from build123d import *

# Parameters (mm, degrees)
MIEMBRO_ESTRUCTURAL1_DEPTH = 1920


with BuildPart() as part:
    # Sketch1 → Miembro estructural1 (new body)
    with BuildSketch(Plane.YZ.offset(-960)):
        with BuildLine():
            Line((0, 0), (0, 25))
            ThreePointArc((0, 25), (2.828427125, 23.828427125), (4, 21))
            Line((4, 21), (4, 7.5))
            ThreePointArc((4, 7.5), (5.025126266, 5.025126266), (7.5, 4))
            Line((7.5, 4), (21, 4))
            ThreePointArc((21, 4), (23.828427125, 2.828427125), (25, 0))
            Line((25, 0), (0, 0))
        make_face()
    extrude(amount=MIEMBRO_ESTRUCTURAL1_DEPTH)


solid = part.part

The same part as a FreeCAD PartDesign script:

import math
import FreeCAD as App
import Part
import Sketcher
from FreeCAD import Vector
Q = App.Units.Quantity

doc = App.newDocument("Part")
params = doc.addObject("Spreadsheet::Sheet", "Params")
for row, (alias, value) in enumerate([
    ("sketch1_radius", "4 mm"),
    ("sketch1_radius2", "3.5 mm"),
    ("sketch1_width", "25 mm"),
    ("pad1_length", "1920 mm"),
], start=1):
    params.set(f"A{row}", alias)
    params.set(f"B{row}", "=" + value)
    params.setAlias(f"B{row}", alias)

body = doc.addObject("PartDesign::Body", "Body")

# Sketch on YZ plane
sketch1 = body.newObject("Sketcher::SketchObject", "Sketch")
sketch1.AttachmentSupport = (doc.getObject("YZ_Plane"), [""])
sketch1.MapMode = "FlatFace"
sketch1.AttachmentOffset = App.Placement(Vector(0, 0, -960), App.Rotation())
sketch1.addGeometry([
    Part.LineSegment(Vector(0, 25, 0), Vector(0, 0, 0)),  # 0
    Part.LineSegment(Vector(0, 0, 0), Vector(25, 0, 0)),  # 1
    Part.ArcOfCircle(Part.Circle(Vector(21, 0, 0), Vector(0, 0, 1), 4), math.radians(0), math.radians(90)),  # 2
    Part.LineSegment(Vector(21, 4, 0), Vector(7.5, 4, 0)),  # 3
    Part.ArcOfCircle(Part.Circle(Vector(7.5, 7.5, 0), Vector(0, 0, 1), 3.5), math.radians(-180), math.radians(-90)),  # 4
    Part.LineSegment(Vector(4, 7.5, 0), Vector(4, 21, 0)),  # 5
    Part.ArcOfCircle(Part.Circle(Vector(0, 21, 0), Vector(0, 0, 1), 4), math.radians(0), math.radians(90)),  # 6
], False)
sketch1.addConstraint([
    Sketcher.Constraint("Coincident", 0, 2, 1, 1),
    Sketcher.Constraint("Coincident", 1, 2, 2, 1),
    Sketcher.Constraint("Tangent", 2, 2, 3, 1),
    Sketcher.Constraint("Tangent", 3, 2, 4, 2),
    Sketcher.Constraint("Tangent", 4, 1, 5, 1),
    Sketcher.Constraint("Tangent", 5, 2, 6, 1),
    Sketcher.Constraint("Coincident", 6, 2, 0, 1),
    Sketcher.Constraint("Vertical", 0),
    Sketcher.Constraint("Horizontal", 1),
    Sketcher.Constraint("Horizontal", 3),
    Sketcher.Constraint("Vertical", 5),
    Sketcher.Constraint("Coincident", 0, 2, -1, 1),
    Sketcher.Constraint("Equal", 2, 6),
    Sketcher.Constraint("PointOnObject", 2, 3, -1),
    Sketcher.Constraint("PointOnObject", 6, 3, -2),
    Sketcher.Constraint("Equal", 1, 0),
    Sketcher.Constraint("Radius", 2, Q("4 mm")),
    Sketcher.Constraint("Radius", 4, Q("3.5 mm")),
    Sketcher.Constraint("DistanceX", 1, 1, 1, 2, Q("25 mm")),
])
sketch1.setExpression("Constraints[16]", "Params.sketch1_radius")
sketch1.setExpression("Constraints[17]", "Params.sketch1_radius2")
sketch1.setExpression("Constraints[18]", "Params.sketch1_width")
pad1 = body.newObject("PartDesign::Pad", "Pad")
pad1.Profile = sketch1
pad1.setExpression("Length", "Params.pad1_length")

doc.recompute()
